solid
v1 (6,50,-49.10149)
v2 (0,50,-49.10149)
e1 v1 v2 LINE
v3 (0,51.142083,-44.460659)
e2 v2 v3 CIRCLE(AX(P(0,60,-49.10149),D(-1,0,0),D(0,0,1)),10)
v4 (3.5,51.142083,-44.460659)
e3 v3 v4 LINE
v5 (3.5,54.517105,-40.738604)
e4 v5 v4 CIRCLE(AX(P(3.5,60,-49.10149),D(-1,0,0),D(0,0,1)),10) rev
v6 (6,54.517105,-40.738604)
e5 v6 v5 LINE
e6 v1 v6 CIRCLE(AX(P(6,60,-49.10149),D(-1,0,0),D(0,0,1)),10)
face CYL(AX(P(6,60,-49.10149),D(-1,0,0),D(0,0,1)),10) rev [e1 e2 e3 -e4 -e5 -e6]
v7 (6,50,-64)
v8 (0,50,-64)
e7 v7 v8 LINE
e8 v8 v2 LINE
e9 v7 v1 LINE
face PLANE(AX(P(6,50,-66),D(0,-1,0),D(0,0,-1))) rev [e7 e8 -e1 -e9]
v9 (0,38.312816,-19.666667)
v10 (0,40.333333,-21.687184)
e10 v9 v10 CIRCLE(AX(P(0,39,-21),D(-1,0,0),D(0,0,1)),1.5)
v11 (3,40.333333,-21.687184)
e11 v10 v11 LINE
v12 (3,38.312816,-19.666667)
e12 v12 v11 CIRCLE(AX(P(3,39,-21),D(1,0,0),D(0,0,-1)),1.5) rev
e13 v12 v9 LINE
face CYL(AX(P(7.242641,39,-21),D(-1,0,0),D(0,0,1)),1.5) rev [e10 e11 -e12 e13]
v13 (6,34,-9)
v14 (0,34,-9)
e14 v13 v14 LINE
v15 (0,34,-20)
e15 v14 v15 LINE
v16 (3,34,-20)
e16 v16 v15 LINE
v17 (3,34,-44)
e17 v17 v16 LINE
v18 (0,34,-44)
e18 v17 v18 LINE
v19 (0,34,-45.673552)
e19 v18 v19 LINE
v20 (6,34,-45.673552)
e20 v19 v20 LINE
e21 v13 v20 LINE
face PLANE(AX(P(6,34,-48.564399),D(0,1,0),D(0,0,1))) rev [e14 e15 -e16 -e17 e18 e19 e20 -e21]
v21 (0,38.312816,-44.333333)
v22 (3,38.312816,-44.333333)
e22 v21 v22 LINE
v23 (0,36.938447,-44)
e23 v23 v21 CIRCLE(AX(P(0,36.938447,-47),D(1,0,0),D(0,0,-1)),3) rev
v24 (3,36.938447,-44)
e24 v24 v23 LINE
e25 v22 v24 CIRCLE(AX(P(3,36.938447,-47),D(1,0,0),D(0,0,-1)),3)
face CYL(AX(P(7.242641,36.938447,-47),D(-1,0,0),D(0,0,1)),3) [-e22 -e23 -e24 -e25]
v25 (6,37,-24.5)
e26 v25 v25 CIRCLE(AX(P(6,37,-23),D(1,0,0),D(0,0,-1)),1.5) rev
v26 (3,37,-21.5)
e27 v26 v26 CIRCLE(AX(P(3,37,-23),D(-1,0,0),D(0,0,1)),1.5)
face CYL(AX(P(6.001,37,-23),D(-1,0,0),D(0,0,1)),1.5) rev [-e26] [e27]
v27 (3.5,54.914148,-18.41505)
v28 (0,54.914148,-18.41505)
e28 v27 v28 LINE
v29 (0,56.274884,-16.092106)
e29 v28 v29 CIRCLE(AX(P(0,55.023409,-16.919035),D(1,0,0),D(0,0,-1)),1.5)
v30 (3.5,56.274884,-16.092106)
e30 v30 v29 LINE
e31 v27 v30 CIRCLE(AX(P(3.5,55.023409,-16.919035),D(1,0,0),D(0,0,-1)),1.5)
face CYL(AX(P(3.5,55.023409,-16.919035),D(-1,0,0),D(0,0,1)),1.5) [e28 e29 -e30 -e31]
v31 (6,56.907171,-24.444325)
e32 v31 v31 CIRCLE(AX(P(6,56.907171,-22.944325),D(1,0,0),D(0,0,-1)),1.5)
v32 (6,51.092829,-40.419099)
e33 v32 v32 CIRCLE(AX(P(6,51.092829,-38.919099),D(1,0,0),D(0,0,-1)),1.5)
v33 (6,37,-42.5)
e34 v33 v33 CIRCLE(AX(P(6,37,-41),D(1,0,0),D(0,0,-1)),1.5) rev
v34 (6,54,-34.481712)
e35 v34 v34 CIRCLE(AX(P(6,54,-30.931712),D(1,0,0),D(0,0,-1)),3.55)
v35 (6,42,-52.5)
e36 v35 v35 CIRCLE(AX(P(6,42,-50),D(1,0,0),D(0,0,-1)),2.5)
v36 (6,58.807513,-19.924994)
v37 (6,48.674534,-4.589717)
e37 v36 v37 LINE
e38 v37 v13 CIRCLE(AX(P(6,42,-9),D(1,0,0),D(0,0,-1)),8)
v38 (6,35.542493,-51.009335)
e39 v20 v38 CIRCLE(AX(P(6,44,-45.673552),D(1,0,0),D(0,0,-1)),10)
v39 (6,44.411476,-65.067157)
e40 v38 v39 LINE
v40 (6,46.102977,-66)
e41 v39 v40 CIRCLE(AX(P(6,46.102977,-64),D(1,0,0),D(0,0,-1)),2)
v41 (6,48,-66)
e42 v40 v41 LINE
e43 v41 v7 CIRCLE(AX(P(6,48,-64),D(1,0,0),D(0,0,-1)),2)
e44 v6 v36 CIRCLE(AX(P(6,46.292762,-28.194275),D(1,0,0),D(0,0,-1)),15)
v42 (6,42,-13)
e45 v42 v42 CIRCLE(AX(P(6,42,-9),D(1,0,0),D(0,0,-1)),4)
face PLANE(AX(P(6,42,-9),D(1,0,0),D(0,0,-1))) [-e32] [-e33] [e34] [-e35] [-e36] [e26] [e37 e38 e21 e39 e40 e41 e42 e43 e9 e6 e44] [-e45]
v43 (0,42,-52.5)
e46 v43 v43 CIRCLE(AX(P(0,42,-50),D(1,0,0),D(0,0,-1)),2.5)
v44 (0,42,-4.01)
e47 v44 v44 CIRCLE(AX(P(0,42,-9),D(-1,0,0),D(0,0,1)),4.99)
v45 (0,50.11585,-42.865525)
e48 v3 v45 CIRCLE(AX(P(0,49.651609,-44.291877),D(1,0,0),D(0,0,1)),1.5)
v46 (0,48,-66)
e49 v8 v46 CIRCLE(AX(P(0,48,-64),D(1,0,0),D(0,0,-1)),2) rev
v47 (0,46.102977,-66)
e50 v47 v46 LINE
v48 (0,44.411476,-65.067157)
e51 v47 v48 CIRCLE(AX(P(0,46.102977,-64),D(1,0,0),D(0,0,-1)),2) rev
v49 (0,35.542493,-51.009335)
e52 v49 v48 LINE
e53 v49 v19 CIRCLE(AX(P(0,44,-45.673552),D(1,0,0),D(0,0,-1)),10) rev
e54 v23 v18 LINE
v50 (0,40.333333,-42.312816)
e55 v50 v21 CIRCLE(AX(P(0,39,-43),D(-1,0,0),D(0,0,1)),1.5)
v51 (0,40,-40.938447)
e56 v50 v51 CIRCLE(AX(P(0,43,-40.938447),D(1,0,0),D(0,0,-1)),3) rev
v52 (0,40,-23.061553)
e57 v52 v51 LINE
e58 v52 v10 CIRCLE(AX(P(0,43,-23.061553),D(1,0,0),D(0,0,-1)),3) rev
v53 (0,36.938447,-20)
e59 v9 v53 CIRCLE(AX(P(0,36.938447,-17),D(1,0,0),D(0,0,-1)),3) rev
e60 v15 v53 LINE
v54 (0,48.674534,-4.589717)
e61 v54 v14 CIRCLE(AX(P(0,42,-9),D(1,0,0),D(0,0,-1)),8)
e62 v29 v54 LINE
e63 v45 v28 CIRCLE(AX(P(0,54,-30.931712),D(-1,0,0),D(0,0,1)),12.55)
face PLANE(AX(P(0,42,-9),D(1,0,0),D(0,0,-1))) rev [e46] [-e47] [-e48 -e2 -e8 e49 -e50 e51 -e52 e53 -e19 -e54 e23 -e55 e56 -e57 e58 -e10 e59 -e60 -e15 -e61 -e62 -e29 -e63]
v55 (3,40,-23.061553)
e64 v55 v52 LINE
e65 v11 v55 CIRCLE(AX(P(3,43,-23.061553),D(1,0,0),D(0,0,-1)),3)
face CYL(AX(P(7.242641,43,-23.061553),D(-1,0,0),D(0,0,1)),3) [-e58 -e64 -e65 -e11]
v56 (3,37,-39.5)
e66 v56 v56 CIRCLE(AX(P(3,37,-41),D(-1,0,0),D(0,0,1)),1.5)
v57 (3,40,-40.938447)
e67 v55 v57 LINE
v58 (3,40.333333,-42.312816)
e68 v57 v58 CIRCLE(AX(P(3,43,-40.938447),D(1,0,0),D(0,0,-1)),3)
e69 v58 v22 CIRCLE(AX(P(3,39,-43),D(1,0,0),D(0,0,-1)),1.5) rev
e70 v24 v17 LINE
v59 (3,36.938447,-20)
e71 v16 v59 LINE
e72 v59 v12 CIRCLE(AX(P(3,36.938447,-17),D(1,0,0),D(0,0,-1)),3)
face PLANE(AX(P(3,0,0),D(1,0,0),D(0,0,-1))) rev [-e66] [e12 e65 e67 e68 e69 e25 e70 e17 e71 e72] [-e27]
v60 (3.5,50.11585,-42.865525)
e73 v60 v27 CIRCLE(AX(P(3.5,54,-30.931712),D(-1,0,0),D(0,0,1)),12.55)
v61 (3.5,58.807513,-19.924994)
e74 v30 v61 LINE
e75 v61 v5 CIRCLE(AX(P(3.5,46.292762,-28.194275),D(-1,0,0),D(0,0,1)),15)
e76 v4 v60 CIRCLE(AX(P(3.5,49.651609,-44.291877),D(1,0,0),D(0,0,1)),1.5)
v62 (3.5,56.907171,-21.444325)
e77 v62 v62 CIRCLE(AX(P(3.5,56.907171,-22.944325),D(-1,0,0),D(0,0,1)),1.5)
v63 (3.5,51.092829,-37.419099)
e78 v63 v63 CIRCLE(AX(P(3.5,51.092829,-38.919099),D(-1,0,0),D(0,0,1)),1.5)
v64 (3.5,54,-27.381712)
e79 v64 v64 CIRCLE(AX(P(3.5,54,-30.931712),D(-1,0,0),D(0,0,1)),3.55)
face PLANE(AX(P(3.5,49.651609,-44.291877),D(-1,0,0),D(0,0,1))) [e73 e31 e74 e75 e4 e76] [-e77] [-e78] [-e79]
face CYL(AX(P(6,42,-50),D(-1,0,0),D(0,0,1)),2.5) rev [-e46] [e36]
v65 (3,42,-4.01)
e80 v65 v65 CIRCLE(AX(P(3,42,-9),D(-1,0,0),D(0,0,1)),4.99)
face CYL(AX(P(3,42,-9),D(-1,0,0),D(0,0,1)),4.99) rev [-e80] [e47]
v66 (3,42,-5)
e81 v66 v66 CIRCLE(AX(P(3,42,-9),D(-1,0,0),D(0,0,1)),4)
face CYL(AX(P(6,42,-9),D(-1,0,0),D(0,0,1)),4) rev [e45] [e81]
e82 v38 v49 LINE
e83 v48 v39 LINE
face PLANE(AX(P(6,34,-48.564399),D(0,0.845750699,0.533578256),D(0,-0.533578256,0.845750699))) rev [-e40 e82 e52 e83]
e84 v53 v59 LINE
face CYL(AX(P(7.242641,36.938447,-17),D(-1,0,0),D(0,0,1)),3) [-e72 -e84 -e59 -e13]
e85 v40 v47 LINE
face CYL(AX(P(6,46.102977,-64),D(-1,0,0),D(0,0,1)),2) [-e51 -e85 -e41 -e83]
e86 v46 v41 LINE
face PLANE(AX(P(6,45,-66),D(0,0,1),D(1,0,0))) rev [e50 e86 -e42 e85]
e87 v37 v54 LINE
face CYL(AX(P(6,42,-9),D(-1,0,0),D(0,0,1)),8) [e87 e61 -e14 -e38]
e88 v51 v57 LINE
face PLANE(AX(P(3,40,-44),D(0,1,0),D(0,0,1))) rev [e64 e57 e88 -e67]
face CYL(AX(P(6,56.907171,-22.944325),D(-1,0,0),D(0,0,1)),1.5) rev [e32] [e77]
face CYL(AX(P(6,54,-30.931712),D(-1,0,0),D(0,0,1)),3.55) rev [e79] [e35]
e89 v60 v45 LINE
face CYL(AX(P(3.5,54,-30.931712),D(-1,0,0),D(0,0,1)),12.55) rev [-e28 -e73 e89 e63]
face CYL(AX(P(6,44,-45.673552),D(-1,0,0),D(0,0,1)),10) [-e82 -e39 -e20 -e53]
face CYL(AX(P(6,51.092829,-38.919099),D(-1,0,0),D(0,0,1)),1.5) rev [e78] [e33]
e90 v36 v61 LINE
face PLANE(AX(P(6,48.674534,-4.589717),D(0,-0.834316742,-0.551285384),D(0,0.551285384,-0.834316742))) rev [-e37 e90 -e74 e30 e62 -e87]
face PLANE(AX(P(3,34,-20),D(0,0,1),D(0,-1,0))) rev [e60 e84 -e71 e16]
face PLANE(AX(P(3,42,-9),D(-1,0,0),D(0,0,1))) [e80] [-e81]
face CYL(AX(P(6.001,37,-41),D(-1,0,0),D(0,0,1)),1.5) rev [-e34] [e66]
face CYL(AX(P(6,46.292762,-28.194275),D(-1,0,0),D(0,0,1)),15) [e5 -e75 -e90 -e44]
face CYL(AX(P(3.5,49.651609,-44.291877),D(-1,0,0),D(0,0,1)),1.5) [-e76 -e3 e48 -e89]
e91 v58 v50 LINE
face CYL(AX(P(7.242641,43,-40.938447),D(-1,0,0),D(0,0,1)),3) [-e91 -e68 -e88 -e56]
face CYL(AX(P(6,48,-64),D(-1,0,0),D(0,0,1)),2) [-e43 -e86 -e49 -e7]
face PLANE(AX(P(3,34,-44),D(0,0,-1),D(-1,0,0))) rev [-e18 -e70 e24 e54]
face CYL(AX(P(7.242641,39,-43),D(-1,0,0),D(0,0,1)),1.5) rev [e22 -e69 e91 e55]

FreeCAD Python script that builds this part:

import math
import FreeCAD as App
import Part
import Sketcher
from FreeCAD import Vector
Q = App.Units.Quantity


def edges_at(feature, points):
    """Names of the edges that pass closest to the given points."""
    edges = feature.Shape.Edges
    near = lambda p: min(range(len(edges)), key=lambda i: edges[i].distToShape(Part.Vertex(*p))[0])
    return sorted({f"Edge{near(p) + 1}" for p in points})


def add_polygon(sketch, points):
    """Adds a closed chain of lines whose ends are joined by coincident constraints."""
    first, n = sketch.GeometryCount, len(points)
    for a, b in zip(points, points[1:] + points[:1]):
        sketch.addGeometry(Part.LineSegment(App.Vector(*a, 0), App.Vector(*b, 0)), False)
    for i in range(n):
        sketch.addConstraint(Sketcher.Constraint("Coincident", first + i, 2, first + (i + 1) % n, 1))

doc = App.newDocument("Part")
body = doc.addObject("PartDesign::Body", "Body")

# Sketch on YZ plane
sketch1 = body.newObject("Sketcher::SketchObject", "Sketch")
sketch1.AttachmentSupport = (doc.getObject("YZ_Plane"), [""])
sketch1.MapMode = "FlatFace"
sketch1.addGeometry([
    Part.LineSegment(Vector(58.8, -19.9, 0), Vector(48.7, -4.6, 0)),  # 0
    Part.ArcOfCircle(Part.Circle(Vector(42, -9, 0), Vector(0, 0, 1), 8), math.radians(33), math.radians(180)),  # 1
    Part.LineSegment(Vector(34, -9, 0), Vector(34, -48.6, 0)),  # 2
    Part.LineSegment(Vector(34, -48.6, 0), Vector(45, -66, 0)),  # 3
    Part.LineSegment(Vector(45, -66, 0), Vector(50, -66, 0)),  # 4
    Part.LineSegment(Vector(50, -66, 0), Vector(50, -49.1, 0)),  # 5
    Part.ArcOfCircle(Part.Circle(Vector(60, -49.1, 0), Vector(0, 0, 1), 10), math.radians(123), math.radians(180)),  # 6
    Part.ArcOfCircle(Part.Circle(Vector(46.3, -28.2, 0), Vector(0, 0, 1), 15), math.radians(-57), math.radians(33)),  # 7
    Part.Circle(Vector(42, -50, 0), Vector(0, 0, 1), 2.5),  # 8
    Part.Circle(Vector(42, -9, 0), Vector(0, 0, 1), 4),  # 9
    Part.Circle(Vector(51.1, -38.9, 0), Vector(0, 0, 1), 1.5),  # 10
    Part.Circle(Vector(54, -30.9, 0), Vector(0, 0, 1), 3.5),  # 11
    Part.Circle(Vector(56.9, -22.9, 0), Vector(0, 0, 1), 1.5),  # 12
], False)
sketch1.addConstraint([
    Sketcher.Constraint("Tangent", 0, 2, 1, 1),
    Sketcher.Constraint("Tangent", 1, 2, 2, 1),
    Sketcher.Constraint("Coincident", 2, 2, 3, 1),
    Sketcher.Constraint("Coincident", 3, 2, 4, 1),
    Sketcher.Constraint("Coincident", 4, 2, 5, 1),
    Sketcher.Constraint("Tangent", 5, 2, 6, 2),
    Sketcher.Constraint("Tangent", 6, 1, 7, 1),
    Sketcher.Constraint("Tangent", 7, 2, 0, 1),
    Sketcher.Constraint("Vertical", 2),
    Sketcher.Constraint("Horizontal", 4),
    Sketcher.Constraint("Vertical", 5),
    Sketcher.Constraint("Coincident", 9, 3, 1, 3),
    Sketcher.Constraint("Equal", 10, 12),
    Sketcher.Constraint("Vertical", 1, 3, 8, 3),
    Sketcher.Constraint("Diameter", 8, Q("5 mm")),
    Sketcher.Constraint("Diameter", 9, Q("8 mm")),
    Sketcher.Constraint("Diameter", 10, Q("3 mm")),
    Sketcher.Constraint("Radius", 1, Q("8 mm")),
    Sketcher.Constraint("Radius", 6, Q("10 mm")),
    Sketcher.Constraint("Radius", 7, Q("15 mm")),
    Sketcher.Constraint("Diameter", 11, Q("7.1 mm")),
    Sketcher.Constraint("DistanceX", 4, 1, 4, 2, Q("5 mm")),
    Sketcher.Constraint("DistanceX", -1, 1, 1, 3, Q("42 mm")),
    Sketcher.Constraint("DistanceY", 1, 3, -1, 1, Q("9 mm")),
    Sketcher.Constraint("DistanceX", -1, 1, 6, 3, Q("60 mm")),
    Sketcher.Constraint("DistanceY", 8, 3, -1, 1, Q("50 mm")),
    Sketcher.Constraint("DistanceX", -1, 1, 11, 3, Q("54 mm")),
    Sketcher.Constraint("DistanceY", 3, 2, -1, 1, Q("66 mm")),
    Sketcher.Constraint("DistanceY", 2, 2, 2, 1, Q("39.564399 mm")),
    Sketcher.Constraint("DistanceY", 5, 1, 5, 2, Q("16.89851 mm")),
    Sketcher.Constraint("DistanceY", 10, 3, -1, 1, Q("38.919099 mm")),
    Sketcher.Constraint("Distance", 0, Q("18.380642 mm")),
    Sketcher.Constraint("DistanceX", -1, 1, 10, 3, Q("51.092829 mm")),
    Sketcher.Constraint("DistanceX", -1, 1, 12, 3, Q("56.907171 mm")),
    Sketcher.Constraint("DistanceY", 7, 3, 12, 3, Q("5.24995 mm")),
    Sketcher.Constraint("DistanceY", 6, 1, 11, 3, Q("9.806892 mm")),
])
pad1 = body.newObject("PartDesign::Pad", "Pad")
pad1.Profile = sketch1
pad1.Length = 6

# Sketch on YZ plane
sketch2 = body.newObject("Sketcher::SketchObject", "Sketch001")
sketch2.AttachmentSupport = (doc.getObject("YZ_Plane"), [""])
sketch2.MapMode = "FlatFace"
sketch2.addGeometry(Part.Circle(Vector(42, -9, 0), Vector(0, 0, 1), 5), False)
sketch2.addConstraint([
    Sketcher.Constraint("Diameter", 0, Q("9.98 mm")),
    Sketcher.Constraint("DistanceX", -1, 1, 0, 3, Q("42 mm")),
    Sketcher.Constraint("DistanceY", 0, 3, -1, 1, Q("9 mm")),
])
pocket1 = body.newObject("PartDesign::Pocket", "Pocket")
pocket1.Profile = sketch2
pocket1.Length = 3
pocket1.Reversed = True

# Sketch on YZ plane
sketch3 = body.newObject("Sketcher::SketchObject", "Sketch002")
sketch3.AttachmentSupport = (doc.getObject("YZ_Plane"), [""])
sketch3.MapMode = "FlatFace"
sketch3.addGeometry([
    Part.LineSegment(Vector(65.4, -29.9, 0), Vector(50.7, -45.3, 0)),  # 0
    Part.ArcOfCircle(Part.Circle(Vector(49.7, -44.3, 0), Vector(0, 0, 1), 1.5), math.radians(-43), math.radians(72)),  # 1
    Part.ArcOfCircle(Part.Circle(Vector(54, -30.9, 0), Vector(0, 0, 1), 12.6), math.radians(86), math.radians(252)),  # 2
    Part.ArcOfCircle(Part.Circle(Vector(55, -16.9, 0), Vector(0, 0, 1), 1.5), math.radians(-94), math.radians(33)),  # 3
    Part.LineSegment(Vector(56.3, -16.1, 0), Vector(65.4, -29.9, 0)),  # 4
], False)
sketch3.addConstraint([
    Sketcher.Constraint("Tangent", 0, 2, 1, 1),
    Sketcher.Constraint("Tangent", 1, 2, 2, 2),
    Sketcher.Constraint("Tangent", 2, 1, 3, 1),
    Sketcher.Constraint("Tangent", 3, 2, 4, 1),
    Sketcher.Constraint("Coincident", 4, 2, 0, 1),
    Sketcher.Constraint("Equal", 1, 3),
    Sketcher.Constraint("Radius", 1, Q("1.5 mm")),
    Sketcher.Constraint("Radius", 2, Q("12.55 mm")),
    Sketcher.Constraint("DistanceX", -1, 1, 2, 3, Q("54 mm")),
    Sketcher.Constraint("DistanceY", 0, 2, -1, 1, Q("45.322402 mm")),
    Sketcher.Constraint("DistanceX", -1, 1, 4, 2, Q("65.367501 mm")),
    Sketcher.Constraint("DistanceX", 1, 3, 3, 3, Q("5.3718 mm")),
    Sketcher.Constraint("DistanceX", -1, 1, 1, 3, Q("49.651609 mm")),
    Sketcher.Constraint("DistanceX", -1, 1, 0, 2, Q("50.741572 mm")),
])
pocket2 = body.newObject("PartDesign::Pocket", "Pocket001")
pocket2.Profile = sketch3
pocket2.Length = 3.5
pocket2.Reversed = True

# Sketch on YZ plane
sketch4 = body.newObject("Sketcher::SketchObject", "Sketch003")
sketch4.AttachmentSupport = (doc.getObject("YZ_Plane"), [""])
sketch4.MapMode = "FlatFace"
add_polygon(sketch4, [(40, -44), (34, -44), (34, -20), (40, -20)])  # lines 0-3
sketch4.addConstraint([
    Sketcher.Constraint("Horizontal", 0),
    Sketcher.Constraint("Vertical", 1),
    Sketcher.Constraint("Horizontal", 2),
    Sketcher.Constraint("Vertical", 3),
    Sketcher.Constraint("DistanceX", 0, 2, 0, 1, Q("6 mm")),
    Sketcher.Constraint("DistanceY", 1, 1, 1, 2, Q("24 mm")),
    Sketcher.Constraint("DistanceX", -1, 1, 0, 2, Q("34 mm")),
    Sketcher.Constraint("DistanceY", 0, 2, -1, 1, Q("44 mm")),
])
pocket3 = body.newObject("PartDesign::Pocket", "Pocket002")
pocket3.Profile = sketch4
pocket3.Length = 3
pocket3.Reversed = True

# Sketch on YZ plane
sketch5 = body.newObject("Sketcher::SketchObject", "Sketch004")
sketch5.AttachmentSupport = (doc.getObject("YZ_Plane"), [""])
sketch5.MapMode = "FlatFace"
sketch5.addGeometry([
    Part.Circle(Vector(39, -43, 0), Vector(0, 0, 1), 1.5),
    Part.Circle(Vector(39, -21, 0), Vector(0, 0, 1), 1.5),
], False)
sketch5.addConstraint([
    Sketcher.Constraint("Equal", 0, 1),
    Sketcher.Constraint("Vertical", 0, 3, 1, 3),
    Sketcher.Constraint("Diameter", 0, Q("3 mm")),
    Sketcher.Constraint("DistanceX", -1, 1, 0, 3, Q("39 mm")),
    Sketcher.Constraint("DistanceY", 0, 3, -1, 1, Q("43 mm")),
    Sketcher.Constraint("DistanceY", 1, 3, -1, 1, Q("21 mm")),
])
pocket4 = body.newObject("PartDesign::Pocket", "Pocket003")
pocket4.Profile = sketch5
pocket4.Length = 3
pocket4.Reversed = True
doc.recompute()

fillet = body.newObject("PartDesign::Fillet", "Fillet")
fillet.Base = (pocket4, edges_at(pocket4, [
    (1.5, 37.882, -44),
    (1.5, 40, -41.882),
    (1.5, 40, -22.118),
    (1.5, 37.882, -20),
]))
fillet.Radius = 3

# Sketch on YZ plane
sketch6 = body.newObject("Sketcher::SketchObject", "Sketch005")
sketch6.AttachmentSupport = (doc.getObject("YZ_Plane"), [""])
sketch6.MapMode = "FlatFace"
sketch6.AttachmentOffset = App.Placement(Vector(0, 0, 3), App.Rotation())
sketch6.addGeometry(Part.Circle(Vector(37, -41, 0), Vector(0, 0, 1), 1.5), False)
sketch6.addConstraint([
    Sketcher.Constraint("Diameter", 0, Q("3 mm")),
    Sketcher.Constraint("DistanceX", -1, 1, 0, 3, Q("37 mm")),
    Sketcher.Constraint("DistanceY", 0, 3, -1, 1, Q("41 mm")),
])
pocket5 = body.newObject("PartDesign::Pocket", "Pocket004")
pocket5.Profile = sketch6
pocket5.Type = "UpToFirst"
pocket5.Reversed = True

# Sketch on YZ plane
sketch7 = body.newObject("Sketcher::SketchObject", "Sketch006")
sketch7.AttachmentSupport = (doc.getObject("YZ_Plane"), [""])
sketch7.MapMode = "FlatFace"
sketch7.AttachmentOffset = App.Placement(Vector(0, 0, 3), App.Rotation())
sketch7.addGeometry(Part.Circle(Vector(37, -23, 0), Vector(0, 0, 1), 1.5), False)
sketch7.addConstraint([
    Sketcher.Constraint("Diameter", 0, Q("3 mm")),
    Sketcher.Constraint("DistanceX", -1, 1, 0, 3, Q("37 mm")),
    Sketcher.Constraint("DistanceY", 0, 3, -1, 1, Q("23 mm")),
])
pocket6 = body.newObject("PartDesign::Pocket", "Pocket005")
pocket6.Profile = sketch7
pocket6.Type = "UpToFirst"
pocket6.Reversed = True
doc.recompute()

fillet2 = body.newObject("PartDesign::Fillet", "Fillet001")
fillet2.Base = (pocket6, edges_at(pocket6, [(3, 34, -48.564)]))
fillet2.Radius = 10
doc.recompute()

fillet3 = body.newObject("PartDesign::Fillet", "Fillet002")
fillet3.Base = (fillet2, edges_at(fillet2, [(3, 50, -66), (3, 45, -66)]))
fillet3.Radius = 2

doc.recompute()
